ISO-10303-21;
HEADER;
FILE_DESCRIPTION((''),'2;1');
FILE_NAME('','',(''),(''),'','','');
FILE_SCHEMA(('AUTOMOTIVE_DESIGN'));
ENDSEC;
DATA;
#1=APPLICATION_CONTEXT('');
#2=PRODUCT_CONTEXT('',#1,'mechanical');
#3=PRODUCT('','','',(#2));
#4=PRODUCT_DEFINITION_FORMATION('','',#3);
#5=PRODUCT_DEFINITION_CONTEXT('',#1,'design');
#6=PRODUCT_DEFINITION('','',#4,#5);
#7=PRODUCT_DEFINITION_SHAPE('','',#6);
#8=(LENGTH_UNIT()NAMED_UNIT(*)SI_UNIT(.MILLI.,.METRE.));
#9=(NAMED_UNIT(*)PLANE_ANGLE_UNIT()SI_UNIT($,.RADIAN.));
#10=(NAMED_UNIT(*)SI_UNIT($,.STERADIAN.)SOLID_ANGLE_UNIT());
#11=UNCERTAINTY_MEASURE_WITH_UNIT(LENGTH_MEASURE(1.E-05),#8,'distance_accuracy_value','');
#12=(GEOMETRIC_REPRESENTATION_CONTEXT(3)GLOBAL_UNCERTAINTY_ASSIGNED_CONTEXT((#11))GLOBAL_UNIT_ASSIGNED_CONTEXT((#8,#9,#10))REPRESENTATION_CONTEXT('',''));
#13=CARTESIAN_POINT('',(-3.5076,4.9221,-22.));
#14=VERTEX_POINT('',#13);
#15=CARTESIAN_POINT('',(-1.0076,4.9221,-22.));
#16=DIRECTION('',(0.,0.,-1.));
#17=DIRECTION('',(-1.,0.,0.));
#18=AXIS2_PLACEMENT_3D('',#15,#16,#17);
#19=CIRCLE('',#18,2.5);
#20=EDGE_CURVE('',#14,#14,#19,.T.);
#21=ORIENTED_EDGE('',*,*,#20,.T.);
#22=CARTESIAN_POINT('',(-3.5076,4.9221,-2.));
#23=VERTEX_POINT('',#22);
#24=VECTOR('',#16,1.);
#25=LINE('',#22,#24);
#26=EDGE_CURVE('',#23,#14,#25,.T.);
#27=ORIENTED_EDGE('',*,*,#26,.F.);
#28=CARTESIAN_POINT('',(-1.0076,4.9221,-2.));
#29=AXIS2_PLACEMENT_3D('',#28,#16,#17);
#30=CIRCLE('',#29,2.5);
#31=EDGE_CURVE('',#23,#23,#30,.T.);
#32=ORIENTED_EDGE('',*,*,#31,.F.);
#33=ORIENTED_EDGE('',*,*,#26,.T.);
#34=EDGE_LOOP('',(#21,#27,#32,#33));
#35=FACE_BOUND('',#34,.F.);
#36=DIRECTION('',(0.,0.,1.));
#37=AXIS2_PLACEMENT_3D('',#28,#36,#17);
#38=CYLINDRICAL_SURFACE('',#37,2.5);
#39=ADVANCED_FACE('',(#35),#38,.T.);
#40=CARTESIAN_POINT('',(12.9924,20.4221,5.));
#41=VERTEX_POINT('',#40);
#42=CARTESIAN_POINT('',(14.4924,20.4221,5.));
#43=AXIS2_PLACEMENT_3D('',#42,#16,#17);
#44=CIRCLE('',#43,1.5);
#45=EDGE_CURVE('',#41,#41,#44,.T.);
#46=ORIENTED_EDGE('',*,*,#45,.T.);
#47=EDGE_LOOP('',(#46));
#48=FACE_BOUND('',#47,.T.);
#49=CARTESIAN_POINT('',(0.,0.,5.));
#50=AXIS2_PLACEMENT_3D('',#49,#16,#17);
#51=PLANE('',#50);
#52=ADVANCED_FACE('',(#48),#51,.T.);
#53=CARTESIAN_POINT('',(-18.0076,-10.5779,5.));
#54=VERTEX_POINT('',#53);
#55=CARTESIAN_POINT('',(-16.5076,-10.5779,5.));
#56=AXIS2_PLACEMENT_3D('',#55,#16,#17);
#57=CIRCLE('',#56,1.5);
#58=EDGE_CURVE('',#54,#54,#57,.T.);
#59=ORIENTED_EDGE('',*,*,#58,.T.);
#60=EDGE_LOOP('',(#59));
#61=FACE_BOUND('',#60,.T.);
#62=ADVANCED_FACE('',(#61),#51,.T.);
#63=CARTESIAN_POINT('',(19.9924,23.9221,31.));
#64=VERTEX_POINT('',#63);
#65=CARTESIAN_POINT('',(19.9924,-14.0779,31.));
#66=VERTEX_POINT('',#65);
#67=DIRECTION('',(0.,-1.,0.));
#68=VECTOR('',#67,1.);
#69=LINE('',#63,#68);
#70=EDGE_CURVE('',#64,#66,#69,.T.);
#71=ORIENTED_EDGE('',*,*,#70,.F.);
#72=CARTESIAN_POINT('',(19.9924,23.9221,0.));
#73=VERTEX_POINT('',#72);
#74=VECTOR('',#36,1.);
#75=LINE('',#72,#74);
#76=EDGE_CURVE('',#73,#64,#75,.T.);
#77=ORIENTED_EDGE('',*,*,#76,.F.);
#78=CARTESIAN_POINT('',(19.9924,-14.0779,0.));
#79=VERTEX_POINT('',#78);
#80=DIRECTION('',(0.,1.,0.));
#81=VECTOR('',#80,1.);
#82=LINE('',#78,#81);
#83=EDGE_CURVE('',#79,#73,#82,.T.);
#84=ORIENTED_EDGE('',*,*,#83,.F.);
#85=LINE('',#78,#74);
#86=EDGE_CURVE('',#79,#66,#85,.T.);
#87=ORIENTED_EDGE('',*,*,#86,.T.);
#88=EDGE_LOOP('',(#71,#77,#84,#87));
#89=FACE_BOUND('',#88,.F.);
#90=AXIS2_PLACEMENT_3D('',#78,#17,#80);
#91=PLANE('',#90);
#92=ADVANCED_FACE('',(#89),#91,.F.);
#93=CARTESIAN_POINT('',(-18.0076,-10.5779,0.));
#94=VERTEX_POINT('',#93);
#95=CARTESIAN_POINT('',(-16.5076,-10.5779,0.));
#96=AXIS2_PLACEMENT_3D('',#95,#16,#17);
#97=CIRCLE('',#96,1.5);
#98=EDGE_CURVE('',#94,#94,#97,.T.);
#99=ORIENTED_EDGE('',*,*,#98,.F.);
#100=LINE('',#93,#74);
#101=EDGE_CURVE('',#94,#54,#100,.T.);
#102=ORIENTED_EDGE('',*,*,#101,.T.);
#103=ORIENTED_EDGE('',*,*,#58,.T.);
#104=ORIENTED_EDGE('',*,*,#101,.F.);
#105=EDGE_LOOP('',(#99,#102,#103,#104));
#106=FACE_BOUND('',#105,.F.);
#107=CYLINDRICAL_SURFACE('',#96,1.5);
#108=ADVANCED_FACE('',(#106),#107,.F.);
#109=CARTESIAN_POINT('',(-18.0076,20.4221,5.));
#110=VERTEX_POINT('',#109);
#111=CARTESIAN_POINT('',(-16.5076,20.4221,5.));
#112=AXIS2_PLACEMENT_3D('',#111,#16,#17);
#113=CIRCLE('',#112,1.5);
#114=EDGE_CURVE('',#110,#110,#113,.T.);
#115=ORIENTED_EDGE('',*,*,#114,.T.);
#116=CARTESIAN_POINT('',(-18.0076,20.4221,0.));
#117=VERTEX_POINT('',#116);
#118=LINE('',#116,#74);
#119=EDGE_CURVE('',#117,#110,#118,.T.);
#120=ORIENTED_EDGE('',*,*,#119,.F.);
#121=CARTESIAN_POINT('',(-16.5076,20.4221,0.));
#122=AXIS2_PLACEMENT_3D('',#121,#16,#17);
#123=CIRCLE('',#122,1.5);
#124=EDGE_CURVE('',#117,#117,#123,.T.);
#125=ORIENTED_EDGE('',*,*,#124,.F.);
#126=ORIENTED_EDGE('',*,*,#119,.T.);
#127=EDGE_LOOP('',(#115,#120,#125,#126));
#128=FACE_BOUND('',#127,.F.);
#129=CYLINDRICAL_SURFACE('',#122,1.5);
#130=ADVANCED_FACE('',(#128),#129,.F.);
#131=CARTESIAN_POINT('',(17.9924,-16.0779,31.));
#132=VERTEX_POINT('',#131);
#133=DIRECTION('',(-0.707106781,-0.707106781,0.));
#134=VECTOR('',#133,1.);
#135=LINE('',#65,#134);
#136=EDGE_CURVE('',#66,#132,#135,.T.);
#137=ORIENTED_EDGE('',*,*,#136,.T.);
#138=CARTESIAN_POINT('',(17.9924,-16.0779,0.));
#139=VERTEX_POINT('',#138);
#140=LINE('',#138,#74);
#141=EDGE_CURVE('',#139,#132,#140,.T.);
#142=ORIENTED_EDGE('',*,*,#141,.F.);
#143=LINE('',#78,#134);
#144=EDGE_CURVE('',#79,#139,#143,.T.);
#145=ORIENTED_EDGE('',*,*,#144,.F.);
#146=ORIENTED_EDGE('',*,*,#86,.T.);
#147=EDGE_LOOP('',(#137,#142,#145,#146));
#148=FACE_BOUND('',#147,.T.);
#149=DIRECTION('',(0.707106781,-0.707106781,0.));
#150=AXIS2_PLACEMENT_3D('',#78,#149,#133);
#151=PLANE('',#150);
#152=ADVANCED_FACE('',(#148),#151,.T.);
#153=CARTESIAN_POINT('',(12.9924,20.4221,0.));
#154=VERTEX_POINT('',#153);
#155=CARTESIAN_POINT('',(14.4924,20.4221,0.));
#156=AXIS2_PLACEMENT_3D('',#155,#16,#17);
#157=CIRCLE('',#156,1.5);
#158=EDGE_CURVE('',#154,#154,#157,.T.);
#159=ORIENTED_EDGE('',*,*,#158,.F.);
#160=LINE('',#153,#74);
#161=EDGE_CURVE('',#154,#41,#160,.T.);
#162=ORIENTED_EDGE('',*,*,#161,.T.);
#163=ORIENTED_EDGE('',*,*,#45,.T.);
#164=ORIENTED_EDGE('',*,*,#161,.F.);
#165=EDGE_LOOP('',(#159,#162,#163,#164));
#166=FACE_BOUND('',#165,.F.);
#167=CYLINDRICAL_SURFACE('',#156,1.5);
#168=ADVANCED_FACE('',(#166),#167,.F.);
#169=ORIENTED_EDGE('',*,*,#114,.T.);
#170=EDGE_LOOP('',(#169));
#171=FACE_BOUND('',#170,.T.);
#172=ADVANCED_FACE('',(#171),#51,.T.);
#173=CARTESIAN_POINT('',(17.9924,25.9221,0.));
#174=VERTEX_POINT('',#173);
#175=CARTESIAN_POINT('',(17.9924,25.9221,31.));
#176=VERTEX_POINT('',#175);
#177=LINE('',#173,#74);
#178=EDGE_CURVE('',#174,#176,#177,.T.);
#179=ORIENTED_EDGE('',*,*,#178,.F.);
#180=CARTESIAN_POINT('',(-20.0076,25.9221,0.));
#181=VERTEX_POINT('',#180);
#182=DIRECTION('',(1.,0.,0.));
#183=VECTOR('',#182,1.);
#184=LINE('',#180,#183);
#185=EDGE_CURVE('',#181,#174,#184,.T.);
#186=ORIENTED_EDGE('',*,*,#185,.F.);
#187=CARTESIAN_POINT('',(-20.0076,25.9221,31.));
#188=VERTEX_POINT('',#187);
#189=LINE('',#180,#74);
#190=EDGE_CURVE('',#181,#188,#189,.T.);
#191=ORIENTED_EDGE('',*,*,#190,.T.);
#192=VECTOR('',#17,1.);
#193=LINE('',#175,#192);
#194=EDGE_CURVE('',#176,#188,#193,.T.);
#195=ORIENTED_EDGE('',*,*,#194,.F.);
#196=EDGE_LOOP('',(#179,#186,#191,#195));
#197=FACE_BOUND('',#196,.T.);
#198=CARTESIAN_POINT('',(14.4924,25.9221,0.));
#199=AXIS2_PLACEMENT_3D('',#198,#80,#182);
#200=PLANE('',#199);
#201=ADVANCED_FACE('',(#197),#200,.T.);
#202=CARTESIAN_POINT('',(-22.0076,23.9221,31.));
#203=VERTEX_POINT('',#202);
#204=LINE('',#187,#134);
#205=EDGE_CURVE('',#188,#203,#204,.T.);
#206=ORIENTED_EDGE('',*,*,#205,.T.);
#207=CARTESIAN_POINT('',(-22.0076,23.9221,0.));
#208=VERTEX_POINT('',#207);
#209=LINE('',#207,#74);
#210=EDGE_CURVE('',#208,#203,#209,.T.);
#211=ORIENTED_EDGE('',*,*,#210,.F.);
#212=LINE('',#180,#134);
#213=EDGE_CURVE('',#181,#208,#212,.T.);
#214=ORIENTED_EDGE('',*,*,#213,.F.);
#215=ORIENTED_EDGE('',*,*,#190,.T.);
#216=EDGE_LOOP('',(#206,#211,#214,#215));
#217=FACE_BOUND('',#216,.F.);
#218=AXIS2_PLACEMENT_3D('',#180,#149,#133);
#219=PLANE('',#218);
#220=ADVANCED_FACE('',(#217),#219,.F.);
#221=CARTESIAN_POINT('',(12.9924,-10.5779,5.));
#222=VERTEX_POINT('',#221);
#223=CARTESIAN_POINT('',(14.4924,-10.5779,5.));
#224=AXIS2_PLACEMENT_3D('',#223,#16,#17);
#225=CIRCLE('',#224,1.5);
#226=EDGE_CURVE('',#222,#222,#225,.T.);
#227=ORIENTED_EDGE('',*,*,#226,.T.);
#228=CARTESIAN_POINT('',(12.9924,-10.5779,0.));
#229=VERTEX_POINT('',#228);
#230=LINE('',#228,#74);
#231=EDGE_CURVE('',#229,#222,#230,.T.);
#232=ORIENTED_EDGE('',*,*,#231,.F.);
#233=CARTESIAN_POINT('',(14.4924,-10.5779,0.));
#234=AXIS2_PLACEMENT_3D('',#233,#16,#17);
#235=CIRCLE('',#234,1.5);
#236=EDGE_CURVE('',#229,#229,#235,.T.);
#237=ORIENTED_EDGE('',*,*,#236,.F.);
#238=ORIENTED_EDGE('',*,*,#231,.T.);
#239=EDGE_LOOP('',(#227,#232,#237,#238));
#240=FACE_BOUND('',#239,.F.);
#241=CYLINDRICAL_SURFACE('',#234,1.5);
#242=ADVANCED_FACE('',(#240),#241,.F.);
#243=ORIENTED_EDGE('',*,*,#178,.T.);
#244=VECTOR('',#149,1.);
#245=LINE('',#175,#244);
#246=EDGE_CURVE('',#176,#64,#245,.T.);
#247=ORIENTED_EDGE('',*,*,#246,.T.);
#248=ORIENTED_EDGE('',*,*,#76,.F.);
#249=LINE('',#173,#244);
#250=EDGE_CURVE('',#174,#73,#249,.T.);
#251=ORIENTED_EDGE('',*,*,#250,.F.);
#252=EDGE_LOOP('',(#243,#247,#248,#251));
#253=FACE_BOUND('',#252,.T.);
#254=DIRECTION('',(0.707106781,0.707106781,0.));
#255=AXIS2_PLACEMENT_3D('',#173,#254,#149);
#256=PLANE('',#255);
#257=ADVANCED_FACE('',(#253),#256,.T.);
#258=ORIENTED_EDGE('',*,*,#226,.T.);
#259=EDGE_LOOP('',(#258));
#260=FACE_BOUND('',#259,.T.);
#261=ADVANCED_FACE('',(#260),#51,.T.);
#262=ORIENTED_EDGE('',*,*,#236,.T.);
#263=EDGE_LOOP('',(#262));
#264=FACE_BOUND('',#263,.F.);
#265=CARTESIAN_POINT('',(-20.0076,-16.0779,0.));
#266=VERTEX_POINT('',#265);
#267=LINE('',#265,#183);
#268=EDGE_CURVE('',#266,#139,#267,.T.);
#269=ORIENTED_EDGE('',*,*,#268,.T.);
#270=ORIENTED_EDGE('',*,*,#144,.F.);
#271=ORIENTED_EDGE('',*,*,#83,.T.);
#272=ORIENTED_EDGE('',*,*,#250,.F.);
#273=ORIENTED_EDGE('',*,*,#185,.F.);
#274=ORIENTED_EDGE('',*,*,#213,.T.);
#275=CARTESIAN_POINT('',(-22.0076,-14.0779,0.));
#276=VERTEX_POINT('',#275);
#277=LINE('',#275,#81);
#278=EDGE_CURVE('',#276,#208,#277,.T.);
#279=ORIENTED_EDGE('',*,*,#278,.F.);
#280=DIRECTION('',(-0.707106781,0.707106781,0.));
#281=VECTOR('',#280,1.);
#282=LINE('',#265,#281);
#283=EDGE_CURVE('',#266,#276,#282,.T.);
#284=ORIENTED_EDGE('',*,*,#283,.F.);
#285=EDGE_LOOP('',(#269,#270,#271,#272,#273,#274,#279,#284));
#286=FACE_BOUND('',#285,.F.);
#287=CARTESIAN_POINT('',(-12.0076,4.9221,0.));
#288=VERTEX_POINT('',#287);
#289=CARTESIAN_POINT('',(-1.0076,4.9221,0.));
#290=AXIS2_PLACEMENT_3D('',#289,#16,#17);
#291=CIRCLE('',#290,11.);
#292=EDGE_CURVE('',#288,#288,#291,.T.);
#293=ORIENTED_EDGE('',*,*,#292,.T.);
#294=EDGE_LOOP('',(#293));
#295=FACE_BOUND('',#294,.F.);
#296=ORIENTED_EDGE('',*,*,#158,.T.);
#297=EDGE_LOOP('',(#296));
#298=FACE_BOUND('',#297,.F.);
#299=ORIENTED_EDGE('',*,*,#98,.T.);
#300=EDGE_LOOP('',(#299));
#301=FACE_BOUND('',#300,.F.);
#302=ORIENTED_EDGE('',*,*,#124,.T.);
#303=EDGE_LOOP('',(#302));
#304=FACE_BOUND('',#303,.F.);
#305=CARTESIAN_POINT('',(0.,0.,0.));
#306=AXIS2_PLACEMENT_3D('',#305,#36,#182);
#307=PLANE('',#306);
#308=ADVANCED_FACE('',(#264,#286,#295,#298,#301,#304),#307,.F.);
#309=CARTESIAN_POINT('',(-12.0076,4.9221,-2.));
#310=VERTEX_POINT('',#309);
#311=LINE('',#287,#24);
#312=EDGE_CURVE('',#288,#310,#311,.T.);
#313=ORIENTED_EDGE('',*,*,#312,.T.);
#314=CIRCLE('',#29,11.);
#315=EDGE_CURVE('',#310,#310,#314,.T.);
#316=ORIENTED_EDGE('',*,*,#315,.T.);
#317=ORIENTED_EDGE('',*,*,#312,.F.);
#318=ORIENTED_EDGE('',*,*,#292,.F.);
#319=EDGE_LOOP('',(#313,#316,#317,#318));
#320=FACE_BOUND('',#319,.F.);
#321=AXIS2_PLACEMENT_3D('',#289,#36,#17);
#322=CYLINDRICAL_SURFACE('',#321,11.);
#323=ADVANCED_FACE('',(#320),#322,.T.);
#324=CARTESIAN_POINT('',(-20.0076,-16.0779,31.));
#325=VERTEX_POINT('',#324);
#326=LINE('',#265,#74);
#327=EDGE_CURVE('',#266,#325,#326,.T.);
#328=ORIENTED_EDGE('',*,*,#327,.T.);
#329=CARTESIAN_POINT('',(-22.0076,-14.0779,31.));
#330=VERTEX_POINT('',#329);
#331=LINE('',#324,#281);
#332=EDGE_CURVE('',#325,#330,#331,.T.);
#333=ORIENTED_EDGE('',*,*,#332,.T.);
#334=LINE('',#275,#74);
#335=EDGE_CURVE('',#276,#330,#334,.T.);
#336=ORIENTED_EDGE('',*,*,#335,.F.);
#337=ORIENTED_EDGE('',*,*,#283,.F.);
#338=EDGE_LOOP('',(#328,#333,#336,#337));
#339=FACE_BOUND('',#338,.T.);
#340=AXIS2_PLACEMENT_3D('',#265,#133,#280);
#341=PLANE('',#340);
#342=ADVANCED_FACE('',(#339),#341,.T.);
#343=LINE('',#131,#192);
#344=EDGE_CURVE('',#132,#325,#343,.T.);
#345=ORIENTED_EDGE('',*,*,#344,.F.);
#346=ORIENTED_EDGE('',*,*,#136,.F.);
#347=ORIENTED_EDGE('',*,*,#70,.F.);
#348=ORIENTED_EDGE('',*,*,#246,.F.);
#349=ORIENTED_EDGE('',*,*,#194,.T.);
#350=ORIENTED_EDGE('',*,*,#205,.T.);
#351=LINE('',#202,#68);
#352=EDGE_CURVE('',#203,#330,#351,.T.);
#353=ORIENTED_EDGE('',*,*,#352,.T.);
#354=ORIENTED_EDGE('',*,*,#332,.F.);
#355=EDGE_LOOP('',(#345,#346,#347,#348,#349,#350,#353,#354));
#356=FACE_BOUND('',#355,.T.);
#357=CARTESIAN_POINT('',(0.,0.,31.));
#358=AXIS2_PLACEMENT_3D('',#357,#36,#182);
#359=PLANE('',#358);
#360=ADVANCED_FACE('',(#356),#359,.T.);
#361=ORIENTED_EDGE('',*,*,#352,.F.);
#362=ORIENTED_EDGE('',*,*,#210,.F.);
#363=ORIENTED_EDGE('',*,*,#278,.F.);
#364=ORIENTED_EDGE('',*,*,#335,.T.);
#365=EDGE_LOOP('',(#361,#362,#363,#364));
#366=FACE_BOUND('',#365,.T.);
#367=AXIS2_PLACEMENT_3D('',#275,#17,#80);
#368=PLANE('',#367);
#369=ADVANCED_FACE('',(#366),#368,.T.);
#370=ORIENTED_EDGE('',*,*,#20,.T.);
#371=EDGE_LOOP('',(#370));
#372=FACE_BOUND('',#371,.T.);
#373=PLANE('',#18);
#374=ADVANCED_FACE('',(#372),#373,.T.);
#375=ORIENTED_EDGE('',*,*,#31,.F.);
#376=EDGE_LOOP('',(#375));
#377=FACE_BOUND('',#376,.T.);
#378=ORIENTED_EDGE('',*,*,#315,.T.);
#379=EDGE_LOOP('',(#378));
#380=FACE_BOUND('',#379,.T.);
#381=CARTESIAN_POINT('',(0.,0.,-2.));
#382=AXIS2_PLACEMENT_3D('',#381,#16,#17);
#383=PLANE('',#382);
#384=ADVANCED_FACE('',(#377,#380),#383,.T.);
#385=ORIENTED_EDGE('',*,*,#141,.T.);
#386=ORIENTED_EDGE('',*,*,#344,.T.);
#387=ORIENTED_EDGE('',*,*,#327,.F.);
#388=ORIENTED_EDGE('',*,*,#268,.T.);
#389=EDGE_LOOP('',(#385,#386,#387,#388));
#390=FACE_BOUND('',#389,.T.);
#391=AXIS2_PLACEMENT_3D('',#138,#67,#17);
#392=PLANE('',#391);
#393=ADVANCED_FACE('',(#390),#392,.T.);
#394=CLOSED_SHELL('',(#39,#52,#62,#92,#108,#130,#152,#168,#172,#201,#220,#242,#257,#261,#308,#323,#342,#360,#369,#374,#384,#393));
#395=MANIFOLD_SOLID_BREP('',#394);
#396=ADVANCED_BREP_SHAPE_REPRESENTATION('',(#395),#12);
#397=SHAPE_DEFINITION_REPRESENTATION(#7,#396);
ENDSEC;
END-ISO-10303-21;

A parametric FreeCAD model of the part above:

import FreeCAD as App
import Part
import Sketcher
from FreeCAD import Vector


def add_polygon(sketch, points):
    """Adds a closed chain of lines whose ends are joined by coincident constraints."""
    first, n = sketch.GeometryCount, len(points)
    for a, b in zip(points, points[1:] + points[:1]):
        sketch.addGeometry(Part.LineSegment(App.Vector(*a, 0), App.Vector(*b, 0)), False)
    for i in range(n):
        sketch.addConstraint(Sketcher.Constraint("Coincident", first + i, 2, first + (i + 1) % n, 1))

doc = App.newDocument("Part")
body = doc.addObject("PartDesign::Body", "Body")

# Sketch on XY plane
sketch1 = body.newObject("Sketcher::SketchObject", "Sketch")
sketch1.AttachmentSupport = (doc.getObject("XY_Plane"), [""])
sketch1.MapMode = "FlatFace"
add_polygon(sketch1, [(18, -16.1), (20, -14.1), (20, 23.9), (18, 25.9), (-20, 25.9), (-22, 23.9), (-22, -14.1), (-20, -16.1)])  # lines 0-7
sketch1.addConstraint([
    Sketcher.Constraint("Vertical", 1),
    Sketcher.Constraint("Horizontal", 3),
    Sketcher.Constraint("Vertical", 5),
    Sketcher.Constraint("Horizontal", 7),
    Sketcher.Constraint("Perpendicular", 0, 2),
    Sketcher.Constraint("Perpendicular", 2, 4),
    Sketcher.Constraint("Perpendicular", 4, 6),
    Sketcher.Constraint("Horizontal", 1, 2, 4, 2),
    Sketcher.Constraint("Horizontal", 0, 2, 5, 2),
    Sketcher.Constraint("Vertical", 3, 2, 6, 2),
    Sketcher.Constraint("Vertical", 2, 2, 7, 2),
    Sketcher.Constraint("Equal", 7, 1),
    Sketcher.Constraint("DistanceX", 2, 2, 1, 2, 2.0),
    Sketcher.Constraint("DistanceX", 3, 2, 3, 1, 38.0),
    Sketcher.Constraint("DistanceY", 0, 2, -1, 1, 14.078),
    Sketcher.Constraint("DistanceX", -1, 1, 0, 2, 19.9924),
])
pad1 = body.newObject("PartDesign::Pad", "Pad")
pad1.Profile = sketch1
pad1.Length = 31

# Sketch on XY plane
sketch2 = body.newObject("Sketcher::SketchObject", "Sketch001")
sketch2.AttachmentSupport = (doc.getObject("XY_Plane"), [""])
sketch2.MapMode = "FlatFace"
sketch2.addGeometry(Part.Circle(Vector(-1, 5, 0), Vector(0, 0, 1), 11), False)
sketch2.addConstraint([
    Sketcher.Constraint("Diameter", 0, 22.0),
    Sketcher.Constraint("DistanceY", -1, 1, 0, 3, 4.922),
    Sketcher.Constraint("DistanceX", 0, 3, -1, 1, 1.0076),
])
pad2 = body.newObject("PartDesign::Pad", "Pad001")
pad2.Profile = sketch2
pad2.Length = 2
pad2.Reversed = True

# Sketch on XY plane
sketch3 = body.newObject("Sketcher::SketchObject", "Sketch002")
sketch3.AttachmentSupport = (doc.getObject("XY_Plane"), [""])
sketch3.MapMode = "FlatFace"
sketch3.addGeometry([
    Part.Circle(Vector(14.5, 20.4, 0), Vector(0, 0, 1), 1.5),
    Part.Circle(Vector(-16.5, 20.4, 0), Vector(0, 0, 1), 1.5),
    Part.Circle(Vector(14.5, -10.6, 0), Vector(0, 0, 1), 1.5),
    Part.Circle(Vector(-16.5, -10.6, 0), Vector(0, 0, 1), 1.5),
], False)
sketch3.addConstraint([
    Sketcher.Constraint("Equal", 0, 1),
    Sketcher.Constraint("Equal", 1, 2),
    Sketcher.Constraint("Equal", 2, 3),
    Sketcher.Constraint("Horizontal", 0, 3, 1, 3),
    Sketcher.Constraint("Horizontal", 2, 3, 3, 3),
    Sketcher.Constraint("Vertical", 0, 3, 2, 3),
    Sketcher.Constraint("Vertical", 1, 3, 3, 3),
    Sketcher.Constraint("Diameter", 0, 3.0),
    Sketcher.Constraint("DistanceX", 1, 3, 0, 3, 31.0),
    Sketcher.Constraint("DistanceY", 2, 3, 0, 3, 31.0),
    Sketcher.Constraint("DistanceY", -1, 1, 0, 3, 20.422),
    Sketcher.Constraint("DistanceX", -1, 1, 0, 3, 14.4924),
])
pocket1 = body.newObject("PartDesign::Pocket", "Pocket")
pocket1.Profile = sketch3
pocket1.Length = 5
pocket1.Reversed = True

# Sketch on XY plane
sketch4 = body.newObject("Sketcher::SketchObject", "Sketch003")
sketch4.AttachmentSupport = (doc.getObject("XY_Plane"), [""])
sketch4.MapMode = "FlatFace"
sketch4.AttachmentOffset = App.Placement(Vector(0, 0, -2), App.Rotation())
sketch4.addGeometry(Part.Circle(Vector(-1, 4.9, 0), Vector(0, 0, 1), 2.5), False)
sketch4.addConstraint([
    Sketcher.Constraint("Diameter", 0, 5.0),
    Sketcher.Constraint("DistanceY", -1, 1, 0, 3, 4.922),
    Sketcher.Constraint("DistanceX", 0, 3, -1, 1, 1.0076),
])
pad3 = body.newObject("PartDesign::Pad", "Pad002")
pad3.Profile = sketch4
pad3.Length = 20
pad3.Reversed = True

doc.recompute()
